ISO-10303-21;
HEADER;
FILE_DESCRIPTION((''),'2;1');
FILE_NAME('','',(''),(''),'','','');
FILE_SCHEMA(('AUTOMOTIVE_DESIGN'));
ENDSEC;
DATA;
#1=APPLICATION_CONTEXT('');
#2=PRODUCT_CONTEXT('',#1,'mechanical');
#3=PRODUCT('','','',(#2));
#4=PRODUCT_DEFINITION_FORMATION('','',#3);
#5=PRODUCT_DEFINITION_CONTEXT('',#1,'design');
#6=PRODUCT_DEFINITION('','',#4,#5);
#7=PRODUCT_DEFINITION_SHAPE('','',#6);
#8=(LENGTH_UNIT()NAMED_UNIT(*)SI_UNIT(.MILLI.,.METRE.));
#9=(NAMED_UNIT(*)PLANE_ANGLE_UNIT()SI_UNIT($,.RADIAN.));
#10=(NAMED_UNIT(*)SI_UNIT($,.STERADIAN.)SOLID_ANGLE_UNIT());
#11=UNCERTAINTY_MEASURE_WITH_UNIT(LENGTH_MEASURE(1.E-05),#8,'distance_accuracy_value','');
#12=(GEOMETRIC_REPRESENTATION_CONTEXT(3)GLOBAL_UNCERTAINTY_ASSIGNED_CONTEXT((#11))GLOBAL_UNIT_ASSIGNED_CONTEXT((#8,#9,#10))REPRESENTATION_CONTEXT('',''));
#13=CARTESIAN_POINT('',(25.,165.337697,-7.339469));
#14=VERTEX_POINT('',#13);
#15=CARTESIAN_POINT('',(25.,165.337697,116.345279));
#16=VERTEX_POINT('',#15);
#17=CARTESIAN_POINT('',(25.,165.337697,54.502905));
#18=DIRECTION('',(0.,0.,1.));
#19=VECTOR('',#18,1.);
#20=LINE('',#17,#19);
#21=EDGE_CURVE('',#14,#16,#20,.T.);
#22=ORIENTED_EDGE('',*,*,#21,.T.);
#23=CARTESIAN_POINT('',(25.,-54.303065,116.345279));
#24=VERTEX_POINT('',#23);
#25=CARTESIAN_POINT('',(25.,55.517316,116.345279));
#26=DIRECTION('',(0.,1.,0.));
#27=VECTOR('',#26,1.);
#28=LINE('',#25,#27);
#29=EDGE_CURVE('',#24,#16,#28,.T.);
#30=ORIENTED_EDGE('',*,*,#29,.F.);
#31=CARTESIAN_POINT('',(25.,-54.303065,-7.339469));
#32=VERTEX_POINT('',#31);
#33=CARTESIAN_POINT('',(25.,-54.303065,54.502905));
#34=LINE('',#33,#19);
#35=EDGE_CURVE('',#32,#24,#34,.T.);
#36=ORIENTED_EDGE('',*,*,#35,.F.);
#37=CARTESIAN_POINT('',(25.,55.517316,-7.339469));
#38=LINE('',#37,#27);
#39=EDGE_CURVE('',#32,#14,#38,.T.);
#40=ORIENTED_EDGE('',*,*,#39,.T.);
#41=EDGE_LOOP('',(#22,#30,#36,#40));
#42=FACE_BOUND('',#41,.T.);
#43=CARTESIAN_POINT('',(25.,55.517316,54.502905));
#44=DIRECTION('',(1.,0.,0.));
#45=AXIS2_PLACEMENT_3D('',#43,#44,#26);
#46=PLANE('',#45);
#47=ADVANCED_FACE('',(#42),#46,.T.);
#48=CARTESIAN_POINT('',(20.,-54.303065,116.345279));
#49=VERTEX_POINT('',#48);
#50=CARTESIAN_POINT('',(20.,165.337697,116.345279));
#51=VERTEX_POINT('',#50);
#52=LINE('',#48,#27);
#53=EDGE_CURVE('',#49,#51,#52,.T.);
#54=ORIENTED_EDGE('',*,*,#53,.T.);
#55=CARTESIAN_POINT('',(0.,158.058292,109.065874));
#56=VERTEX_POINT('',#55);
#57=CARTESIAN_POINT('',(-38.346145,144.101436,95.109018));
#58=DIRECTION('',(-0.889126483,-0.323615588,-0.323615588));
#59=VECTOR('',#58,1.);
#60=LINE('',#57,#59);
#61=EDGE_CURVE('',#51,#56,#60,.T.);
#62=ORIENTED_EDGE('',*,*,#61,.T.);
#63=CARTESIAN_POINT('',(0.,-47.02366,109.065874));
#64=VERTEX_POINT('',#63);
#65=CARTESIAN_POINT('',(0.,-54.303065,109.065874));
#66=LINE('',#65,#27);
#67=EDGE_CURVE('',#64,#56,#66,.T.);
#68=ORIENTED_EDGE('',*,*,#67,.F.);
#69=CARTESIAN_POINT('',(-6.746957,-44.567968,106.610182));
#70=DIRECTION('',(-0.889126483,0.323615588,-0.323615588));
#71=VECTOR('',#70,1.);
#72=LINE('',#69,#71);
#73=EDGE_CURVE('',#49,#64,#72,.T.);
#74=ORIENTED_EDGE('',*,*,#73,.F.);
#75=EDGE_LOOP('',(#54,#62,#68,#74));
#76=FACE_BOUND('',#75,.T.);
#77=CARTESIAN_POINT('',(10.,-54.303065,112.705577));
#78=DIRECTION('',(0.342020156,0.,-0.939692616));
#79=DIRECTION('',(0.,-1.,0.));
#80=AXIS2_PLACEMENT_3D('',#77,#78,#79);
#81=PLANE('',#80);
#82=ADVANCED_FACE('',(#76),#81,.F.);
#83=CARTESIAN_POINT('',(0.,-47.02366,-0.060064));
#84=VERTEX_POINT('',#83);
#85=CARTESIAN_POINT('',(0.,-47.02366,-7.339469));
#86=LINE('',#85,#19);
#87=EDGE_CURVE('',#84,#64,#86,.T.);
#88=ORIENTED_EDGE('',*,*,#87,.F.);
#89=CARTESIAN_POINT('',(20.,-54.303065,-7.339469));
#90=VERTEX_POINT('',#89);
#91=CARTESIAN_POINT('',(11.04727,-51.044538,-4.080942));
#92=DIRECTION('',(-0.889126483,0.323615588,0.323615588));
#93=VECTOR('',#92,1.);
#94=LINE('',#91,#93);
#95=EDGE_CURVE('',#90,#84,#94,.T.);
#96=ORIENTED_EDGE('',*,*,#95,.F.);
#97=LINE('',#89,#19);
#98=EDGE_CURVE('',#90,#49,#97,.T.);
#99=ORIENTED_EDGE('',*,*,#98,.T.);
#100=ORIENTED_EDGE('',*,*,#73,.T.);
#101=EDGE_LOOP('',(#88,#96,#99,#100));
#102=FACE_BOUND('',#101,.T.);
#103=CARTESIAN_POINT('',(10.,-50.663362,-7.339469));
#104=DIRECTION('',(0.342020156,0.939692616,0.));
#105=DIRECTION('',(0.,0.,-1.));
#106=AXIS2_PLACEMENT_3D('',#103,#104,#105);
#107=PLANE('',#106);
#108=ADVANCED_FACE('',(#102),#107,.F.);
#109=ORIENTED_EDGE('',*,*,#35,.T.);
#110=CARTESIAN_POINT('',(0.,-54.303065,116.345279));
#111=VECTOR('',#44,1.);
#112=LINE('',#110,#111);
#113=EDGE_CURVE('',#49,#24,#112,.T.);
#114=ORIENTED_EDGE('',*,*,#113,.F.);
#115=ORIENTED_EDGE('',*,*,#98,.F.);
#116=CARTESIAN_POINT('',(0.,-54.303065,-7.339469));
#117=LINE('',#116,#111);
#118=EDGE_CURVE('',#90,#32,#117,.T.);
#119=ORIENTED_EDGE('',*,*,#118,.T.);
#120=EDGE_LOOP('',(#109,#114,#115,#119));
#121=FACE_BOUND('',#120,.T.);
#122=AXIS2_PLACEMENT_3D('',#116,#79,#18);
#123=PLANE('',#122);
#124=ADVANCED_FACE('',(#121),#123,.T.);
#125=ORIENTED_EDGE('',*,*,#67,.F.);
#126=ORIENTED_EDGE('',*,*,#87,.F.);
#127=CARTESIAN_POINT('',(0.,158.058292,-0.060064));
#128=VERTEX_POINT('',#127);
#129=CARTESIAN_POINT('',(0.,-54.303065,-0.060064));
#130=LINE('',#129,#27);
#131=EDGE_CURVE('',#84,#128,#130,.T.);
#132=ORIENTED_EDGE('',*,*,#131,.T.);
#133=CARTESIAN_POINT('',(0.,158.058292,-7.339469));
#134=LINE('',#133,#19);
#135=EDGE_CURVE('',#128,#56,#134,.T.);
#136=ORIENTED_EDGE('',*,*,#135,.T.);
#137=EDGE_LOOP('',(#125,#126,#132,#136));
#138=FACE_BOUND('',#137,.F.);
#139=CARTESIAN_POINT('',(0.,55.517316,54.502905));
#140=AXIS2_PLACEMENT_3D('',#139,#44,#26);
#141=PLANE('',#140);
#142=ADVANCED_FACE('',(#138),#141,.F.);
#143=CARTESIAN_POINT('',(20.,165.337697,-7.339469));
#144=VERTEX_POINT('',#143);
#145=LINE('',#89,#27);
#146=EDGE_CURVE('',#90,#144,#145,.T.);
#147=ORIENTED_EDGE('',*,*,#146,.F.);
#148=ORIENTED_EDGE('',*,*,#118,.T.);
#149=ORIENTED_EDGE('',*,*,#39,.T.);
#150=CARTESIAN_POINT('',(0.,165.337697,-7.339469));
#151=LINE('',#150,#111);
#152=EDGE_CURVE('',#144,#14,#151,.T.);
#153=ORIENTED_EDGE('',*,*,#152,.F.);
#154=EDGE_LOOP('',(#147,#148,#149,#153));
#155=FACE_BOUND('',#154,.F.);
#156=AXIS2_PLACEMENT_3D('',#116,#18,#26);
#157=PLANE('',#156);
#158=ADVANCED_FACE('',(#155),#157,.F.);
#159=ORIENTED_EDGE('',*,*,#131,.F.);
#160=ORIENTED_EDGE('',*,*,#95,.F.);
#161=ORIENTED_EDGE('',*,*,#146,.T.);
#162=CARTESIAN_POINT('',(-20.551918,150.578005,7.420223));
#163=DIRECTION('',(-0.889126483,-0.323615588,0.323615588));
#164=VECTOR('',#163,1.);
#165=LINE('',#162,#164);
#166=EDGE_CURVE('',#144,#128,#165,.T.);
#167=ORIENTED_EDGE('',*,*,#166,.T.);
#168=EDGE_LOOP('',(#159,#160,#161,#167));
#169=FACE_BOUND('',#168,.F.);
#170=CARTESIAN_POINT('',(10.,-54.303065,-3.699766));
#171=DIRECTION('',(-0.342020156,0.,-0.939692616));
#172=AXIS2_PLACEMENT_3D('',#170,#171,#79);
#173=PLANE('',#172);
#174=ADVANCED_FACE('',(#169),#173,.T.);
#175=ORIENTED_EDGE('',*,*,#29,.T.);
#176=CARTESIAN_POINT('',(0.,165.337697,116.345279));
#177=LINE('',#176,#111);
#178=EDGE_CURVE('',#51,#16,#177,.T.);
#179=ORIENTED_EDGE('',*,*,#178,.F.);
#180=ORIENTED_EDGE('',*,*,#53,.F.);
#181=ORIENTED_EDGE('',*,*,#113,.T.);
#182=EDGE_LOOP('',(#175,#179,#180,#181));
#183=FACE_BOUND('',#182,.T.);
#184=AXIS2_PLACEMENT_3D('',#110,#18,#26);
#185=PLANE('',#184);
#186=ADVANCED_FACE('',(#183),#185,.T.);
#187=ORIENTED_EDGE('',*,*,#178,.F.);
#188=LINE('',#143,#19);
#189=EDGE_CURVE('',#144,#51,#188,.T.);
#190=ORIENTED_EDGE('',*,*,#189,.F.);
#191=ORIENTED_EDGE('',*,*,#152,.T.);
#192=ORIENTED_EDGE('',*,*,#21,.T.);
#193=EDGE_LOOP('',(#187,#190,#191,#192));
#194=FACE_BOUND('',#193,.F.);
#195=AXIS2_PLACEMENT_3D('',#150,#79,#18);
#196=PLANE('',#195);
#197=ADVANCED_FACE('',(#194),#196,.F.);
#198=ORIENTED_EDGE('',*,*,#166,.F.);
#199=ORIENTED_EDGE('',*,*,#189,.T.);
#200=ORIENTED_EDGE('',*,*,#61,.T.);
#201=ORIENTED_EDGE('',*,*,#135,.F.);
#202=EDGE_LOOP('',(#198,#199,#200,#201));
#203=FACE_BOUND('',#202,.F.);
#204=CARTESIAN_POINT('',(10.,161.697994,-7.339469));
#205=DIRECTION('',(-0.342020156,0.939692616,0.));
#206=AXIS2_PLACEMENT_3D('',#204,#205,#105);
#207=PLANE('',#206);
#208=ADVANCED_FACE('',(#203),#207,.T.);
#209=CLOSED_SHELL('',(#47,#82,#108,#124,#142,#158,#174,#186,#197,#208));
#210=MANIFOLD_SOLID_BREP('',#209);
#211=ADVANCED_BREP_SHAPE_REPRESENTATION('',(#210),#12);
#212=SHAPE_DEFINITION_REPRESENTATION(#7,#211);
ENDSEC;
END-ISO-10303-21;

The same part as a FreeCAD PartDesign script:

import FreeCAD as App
import Part
import Sketcher

V = App.Vector
Q = App.Units.Quantity


def edges_at(feature, points):
    """Names of the edges that pass closest to the given points."""
    edges = feature.Shape.Edges
    near = lambda p: min(range(len(edges)), key=lambda i: edges[i].distToShape(Part.Vertex(*p))[0])
    return sorted({f"Edge{near(p) + 1}" for p in points})


def add_polygon(sketch, points):
    """Adds a closed chain of lines whose ends are joined by coincident constraints."""
    first, n = sketch.GeometryCount, len(points)
    for a, b in zip(points, points[1:] + points[:1]):
        sketch.addGeometry(Part.LineSegment(App.Vector(*a, 0), App.Vector(*b, 0)), False)
    for i in range(n):
        sketch.addConstraint(Sketcher.Constraint("Coincident", first + i, 2, first + (i + 1) % n, 1))

doc = App.newDocument("Part")
body = doc.addObject("PartDesign::Body", "Body")

sketch1 = body.newObject("Sketcher::SketchObject", "Sketch")
sketch1.AttachmentSupport = (doc.getObject("YZ_Plane"), [""])
sketch1.MapMode = "FlatFace"
add_polygon(sketch1, [(-54, 116), (-54, -7), (165, -7), (165, 116)])
sketch1.addConstraint([
    Sketcher.Constraint("Vertical", 0),
    Sketcher.Constraint("Horizontal", 1),
    Sketcher.Constraint("Vertical", 2),
    Sketcher.Constraint("Horizontal", 3),
    Sketcher.Constraint("DistanceX", 1, 1, 1, 2, Q("219.640762 mm")),
    Sketcher.Constraint("DistanceY", 0, 2, 0, 1, Q("123.684748 mm")),
    Sketcher.Constraint("DistanceY", 0, 2, -1, 1, Q("7.339469 mm")),
    Sketcher.Constraint("DistanceX", 0, 2, -1, 1, Q("54.303065 mm")),
])
pad1 = body.newObject("PartDesign::Pad", "Pad")
pad1.Profile = sketch1
pad1.Length = 25
doc.recompute()

chamfer = body.newObject("PartDesign::Chamfer", "Chamfer")
chamfer.Base = (pad1, edges_at(pad1, [
    (0, 165.338, 54.503),
    (0, 55.517, 116.345),
    (0, -54.303, 54.503),
    (0, 55.517, -7.339),
]))
chamfer.ChamferType = "Two distances"
chamfer.Size = 20
chamfer.Size2 = 7.279405

doc.recompute()
